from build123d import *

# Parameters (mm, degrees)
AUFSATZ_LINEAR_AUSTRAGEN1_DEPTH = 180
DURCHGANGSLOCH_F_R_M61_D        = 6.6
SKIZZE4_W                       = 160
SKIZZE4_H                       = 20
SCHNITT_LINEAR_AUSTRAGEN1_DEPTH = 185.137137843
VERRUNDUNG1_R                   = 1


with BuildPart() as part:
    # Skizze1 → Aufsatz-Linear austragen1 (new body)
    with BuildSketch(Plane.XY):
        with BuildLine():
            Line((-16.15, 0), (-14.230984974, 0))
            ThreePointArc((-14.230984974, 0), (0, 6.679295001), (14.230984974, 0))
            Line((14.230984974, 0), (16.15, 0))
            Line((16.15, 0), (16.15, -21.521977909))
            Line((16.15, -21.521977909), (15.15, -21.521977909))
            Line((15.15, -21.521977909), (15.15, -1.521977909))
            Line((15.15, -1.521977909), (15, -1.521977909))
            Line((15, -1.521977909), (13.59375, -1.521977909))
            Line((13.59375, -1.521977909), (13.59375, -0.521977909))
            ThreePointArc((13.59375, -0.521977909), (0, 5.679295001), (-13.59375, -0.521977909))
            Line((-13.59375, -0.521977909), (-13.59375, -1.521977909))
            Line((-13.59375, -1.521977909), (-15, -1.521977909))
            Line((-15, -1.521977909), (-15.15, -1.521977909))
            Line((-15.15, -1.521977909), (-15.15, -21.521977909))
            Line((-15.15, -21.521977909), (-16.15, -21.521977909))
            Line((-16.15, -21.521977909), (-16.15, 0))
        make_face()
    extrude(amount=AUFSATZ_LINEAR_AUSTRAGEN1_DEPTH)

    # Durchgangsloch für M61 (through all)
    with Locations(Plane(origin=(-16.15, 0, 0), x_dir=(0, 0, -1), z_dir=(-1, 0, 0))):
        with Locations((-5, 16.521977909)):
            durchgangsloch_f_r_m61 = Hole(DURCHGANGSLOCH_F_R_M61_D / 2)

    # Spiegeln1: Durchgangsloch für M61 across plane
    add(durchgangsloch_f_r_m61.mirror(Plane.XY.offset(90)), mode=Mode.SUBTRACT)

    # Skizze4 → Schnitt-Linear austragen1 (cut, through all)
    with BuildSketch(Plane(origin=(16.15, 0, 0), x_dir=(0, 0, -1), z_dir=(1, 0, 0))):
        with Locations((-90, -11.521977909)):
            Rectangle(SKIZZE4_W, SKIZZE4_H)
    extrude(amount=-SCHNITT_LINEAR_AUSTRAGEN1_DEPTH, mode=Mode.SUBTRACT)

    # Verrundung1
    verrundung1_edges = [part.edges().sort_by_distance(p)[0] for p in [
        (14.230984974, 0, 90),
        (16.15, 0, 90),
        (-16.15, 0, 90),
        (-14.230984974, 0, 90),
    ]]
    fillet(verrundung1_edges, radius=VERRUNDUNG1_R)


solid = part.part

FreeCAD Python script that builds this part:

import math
import FreeCAD as App
import Part
import Sketcher
from FreeCAD import Vector
Q = App.Units.Quantity


def edges_at(feature, points):
    """Names of the edges that pass closest to the given points."""
    edges = feature.Shape.Edges
    near = lambda p: min(range(len(edges)), key=lambda i: edges[i].distToShape(Part.Vertex(*p))[0])
    return sorted({f"Edge{near(p) + 1}" for p in points})


def add_polygon(sketch, points):
    """Adds a closed chain of lines whose ends are joined by coincident constraints."""
    first, n = sketch.GeometryCount, len(points)
    for a, b in zip(points, points[1:] + points[:1]):
        sketch.addGeometry(Part.LineSegment(App.Vector(*a, 0), App.Vector(*b, 0)), False)
    for i in range(n):
        sketch.addConstraint(Sketcher.Constraint("Coincident", first + i, 2, first + (i + 1) % n, 1))

doc = App.newDocument("Part")
body = doc.addObject("PartDesign::Body", "Body")

# Sketch on XY plane
sketch1 = doc.addObject("Sketcher::SketchObject", "Sketch")
body.addObject(sketch1)
sketch1.AttachmentSupport = (doc.XY_Plane, [""])
sketch1.MapMode = "FlatFace"
sketch1.addGeometry(Part.LineSegment(Vector(-14.2, 0, 0), Vector(-16.1, 0, 0)), False)
sketch1.addGeometry(Part.LineSegment(Vector(-16.1, 0, 0), Vector(-16.1, -21.5, 0)), False)
sketch1.addGeometry(Part.LineSegment(Vector(-16.1, -21.5, 0), Vector(-15.2, -21.5, 0)), False)
sketch1.addGeometry(Part.LineSegment(Vector(-15.2, -21.5, 0), Vector(-15.2, -1.5, 0)), False)
sketch1.addGeometry(Part.LineSegment(Vector(-15.2, -1.5, 0), Vector(-13.6, -1.5, 0)), False)
sketch1.addGeometry(Part.LineSegment(Vector(-13.6, -1.5, 0), Vector(-13.6, -0.5, 0)), False)
sketch1.addGeometry(Part.ArcOfCircle(Part.Circle(Vector(0, -12.3, 0), Vector(0, 0, 1), 18), math.radians(41), math.radians(139)), False)
sketch1.addGeometry(Part.LineSegment(Vector(13.6, -0.5, 0), Vector(13.6, -1.5, 0)), False)
sketch1.addGeometry(Part.LineSegment(Vector(13.6, -1.5, 0), Vector(15.2, -1.5, 0)), False)
sketch1.addGeometry(Part.LineSegment(Vector(15.2, -1.5, 0), Vector(15.2, -21.5, 0)), False)
sketch1.addGeometry(Part.LineSegment(Vector(15.2, -21.5, 0), Vector(16.1, -21.5, 0)), False)
sketch1.addGeometry(Part.LineSegment(Vector(16.1, -21.5, 0), Vector(16.1, 0, 0)), False)
sketch1.addGeometry(Part.LineSegment(Vector(16.1, 0, 0), Vector(14.2, 0, 0)), False)
sketch1.addGeometry(Part.ArcOfCircle(Part.Circle(Vector(0, -11.8, 0), Vector(0, 0, 1), 18.5), math.radians(40), math.radians(140)), False)
sketch1.addConstraint(Sketcher.Constraint("Coincident", 0, 2, 1, 1))
sketch1.addConstraint(Sketcher.Constraint("Coincident", 1, 2, 2, 1))
sketch1.addConstraint(Sketcher.Constraint("Coincident", 2, 2, 3, 1))
sketch1.addConstraint(Sketcher.Constraint("Coincident", 3, 2, 4, 1))
sketch1.addConstraint(Sketcher.Constraint("Coincident", 4, 2, 5, 1))
sketch1.addConstraint(Sketcher.Constraint("Coincident", 5, 2, 6, 2))
sketch1.addConstraint(Sketcher.Constraint("Coincident", 6, 1, 7, 1))
sketch1.addConstraint(Sketcher.Constraint("Coincident", 7, 2, 8, 1))
sketch1.addConstraint(Sketcher.Constraint("Coincident", 8, 2, 9, 1))
sketch1.addConstraint(Sketcher.Constraint("Coincident", 9, 2, 10, 1))
sketch1.addConstraint(Sketcher.Constraint("Coincident", 10, 2, 11, 1))
sketch1.addConstraint(Sketcher.Constraint("Coincident", 11, 2, 12, 1))
sketch1.addConstraint(Sketcher.Constraint("Coincident", 12, 2, 13, 1))
sketch1.addConstraint(Sketcher.Constraint("Coincident", 13, 2, 0, 1))
sketch1.addConstraint(Sketcher.Constraint("Horizontal", 0))
sketch1.addConstraint(Sketcher.Constraint("Vertical", 1))
sketch1.addConstraint(Sketcher.Constraint("Horizontal", 2))
sketch1.addConstraint(Sketcher.Constraint("Vertical", 3))
sketch1.addConstraint(Sketcher.Constraint("Horizontal", 4))
sketch1.addConstraint(Sketcher.Constraint("Vertical", 5))
sketch1.addConstraint(Sketcher.Constraint("Vertical", 7))
sketch1.addConstraint(Sketcher.Constraint("Horizontal", 8))
sketch1.addConstraint(Sketcher.Constraint("Vertical", 9))
sketch1.addConstraint(Sketcher.Constraint("Horizontal", 10))
sketch1.addConstraint(Sketcher.Constraint("Vertical", 11))
sketch1.addConstraint(Sketcher.Constraint("Horizontal", 12))
sketch1.addConstraint(Sketcher.Constraint("Symmetric", 0, 2, 11, 2, -1, 1))
sketch1.addConstraint(Sketcher.Constraint("Symmetric", 5, 2, 6, 1, -2))
sketch1.addConstraint(Sketcher.Constraint("Symmetric", 3, 2, 8, 2, -2))
sketch1.addConstraint(Sketcher.Constraint("Symmetric", 12, 2, 13, 2, -2))
sketch1.addConstraint(Sketcher.Constraint("Horizontal", 2, 2, 9, 2))
sketch1.addConstraint(Sketcher.Constraint("Equal", 10, 5))
sketch1.addConstraint(Sketcher.Constraint("Radius", 6, Q("18 mm")))
sketch1.addConstraint(Sketcher.Constraint("Radius", 13, Q("18.5 mm")))
sketch1.addConstraint(Sketcher.Constraint("DistanceX", 2, 1, 2, 2, Q("1 mm")))
sketch1.addConstraint(Sketcher.Constraint("DistanceY", 3, 1, 3, 2, Q("20 mm")))
sketch1.addConstraint(Sketcher.Constraint("DistanceY", 6, 3, 13, 3, Q("0.5 mm")))
sketch1.addConstraint(Sketcher.Constraint("DistanceX", 0, 2, -1, 1, Q("16.15 mm")))
sketch1.addConstraint(Sketcher.Constraint("DistanceX", 4, 1, 4, 2, Q("1.55625 mm")))
sketch1.addConstraint(Sketcher.Constraint("DistanceX", 0, 2, 0, 1, Q("1.919015 mm")))
pad1 = doc.addObject("PartDesign::Pad", "Pad")
body.addObject(pad1)
pad1.Profile = sketch1
pad1.Length = 180

# Sketch on YZ plane
sketch2 = doc.addObject("Sketcher::SketchObject", "Sketch001")
body.addObject(sketch2)
sketch2.AttachmentSupport = (doc.YZ_Plane, [""])
sketch2.MapMode = "FlatFace"
sketch2.AttachmentOffset = App.Placement(Vector(0, 0, -16.15), App.Rotation())
sketch2.addGeometry(Part.Circle(Vector(-16.5, 5, 0), Vector(0, 0, 1), 3.3), False)
sketch2.addConstraint(Sketcher.Constraint("Diameter", 0, Q("6.6 mm")))
sketch2.addConstraint(Sketcher.Constraint("DistanceY", -1, 1, 0, 3, Q("5 mm")))
sketch2.addConstraint(Sketcher.Constraint("DistanceX", 0, 3, -1, 1, Q("16.521978 mm")))
doc.recompute()
hole = doc.addObject("PartDesign::Hole", "Hole")
body.addObject(hole)
hole.Profile = sketch2
hole.ThreadType = "None"
hole.Diameter = 6.6
hole.DepthType = "ThroughAll"
hole.Reversed = True
doc.recompute()

datumplane = doc.addObject("PartDesign::Plane", "DatumPlane")
body.addObject(datumplane)
datumplane.AttachmentSupport = (doc.XY_Plane, [""])
datumplane.MapMode = "FlatFace"
datumplane.AttachmentOffset = App.Placement(Vector(0, 0, 90), App.Rotation())
mirrored = doc.addObject("PartDesign::Mirrored", "Mirrored")
body.addObject(mirrored)
mirrored.Originals = [hole]
mirrored.MirrorPlane = (datumplane, [""])
body.Tip = mirrored

# Sketch on YZ plane
sketch3 = doc.addObject("Sketcher::SketchObject", "Sketch002")
body.addObject(sketch3)
sketch3.AttachmentSupport = (doc.YZ_Plane, [""])
sketch3.MapMode = "FlatFace"
sketch3.AttachmentOffset = App.Placement(Vector(0, 0, 16.15), App.Rotation())
add_polygon(sketch3, [(-2, 170), (-22, 170), (-22, 10), (-2, 10)])  # lines 0-3
sketch3.addConstraint(Sketcher.Constraint("Horizontal", 0))
sketch3.addConstraint(Sketcher.Constraint("Vertical", 1))
sketch3.addConstraint(Sketcher.Constraint("Horizontal", 2))
sketch3.addConstraint(Sketcher.Constraint("Vertical", 3))
sketch3.addConstraint(Sketcher.Constraint("DistanceX", 0, 2, 0, 1, Q("20 mm")))
sketch3.addConstraint(Sketcher.Constraint("DistanceY", 1, 2, 1, 1, Q("160 mm")))
sketch3.addConstraint(Sketcher.Constraint("DistanceY", -1, 1, 0, 2, Q("170 mm")))
sketch3.addConstraint(Sketcher.Constraint("DistanceX", 0, 2, -1, 1, Q("21.521978 mm")))
pocket1 = doc.addObject("PartDesign::Pocket", "Pocket")
body.addObject(pocket1)
pocket1.Profile = sketch3
pocket1.Type = "ThroughAll"
doc.recompute()

fillet = doc.addObject("PartDesign::Fillet", "Fillet")
body.addObject(fillet)
fillet.Base = (pocket1, edges_at(pocket1, [
    (14.231, 0, 90),
    (16.15, 0, 90),
    (-16.15, 0, 90),
    (-14.231, 0, 90),
]))
fillet.Radius = 1

doc.recompute()
